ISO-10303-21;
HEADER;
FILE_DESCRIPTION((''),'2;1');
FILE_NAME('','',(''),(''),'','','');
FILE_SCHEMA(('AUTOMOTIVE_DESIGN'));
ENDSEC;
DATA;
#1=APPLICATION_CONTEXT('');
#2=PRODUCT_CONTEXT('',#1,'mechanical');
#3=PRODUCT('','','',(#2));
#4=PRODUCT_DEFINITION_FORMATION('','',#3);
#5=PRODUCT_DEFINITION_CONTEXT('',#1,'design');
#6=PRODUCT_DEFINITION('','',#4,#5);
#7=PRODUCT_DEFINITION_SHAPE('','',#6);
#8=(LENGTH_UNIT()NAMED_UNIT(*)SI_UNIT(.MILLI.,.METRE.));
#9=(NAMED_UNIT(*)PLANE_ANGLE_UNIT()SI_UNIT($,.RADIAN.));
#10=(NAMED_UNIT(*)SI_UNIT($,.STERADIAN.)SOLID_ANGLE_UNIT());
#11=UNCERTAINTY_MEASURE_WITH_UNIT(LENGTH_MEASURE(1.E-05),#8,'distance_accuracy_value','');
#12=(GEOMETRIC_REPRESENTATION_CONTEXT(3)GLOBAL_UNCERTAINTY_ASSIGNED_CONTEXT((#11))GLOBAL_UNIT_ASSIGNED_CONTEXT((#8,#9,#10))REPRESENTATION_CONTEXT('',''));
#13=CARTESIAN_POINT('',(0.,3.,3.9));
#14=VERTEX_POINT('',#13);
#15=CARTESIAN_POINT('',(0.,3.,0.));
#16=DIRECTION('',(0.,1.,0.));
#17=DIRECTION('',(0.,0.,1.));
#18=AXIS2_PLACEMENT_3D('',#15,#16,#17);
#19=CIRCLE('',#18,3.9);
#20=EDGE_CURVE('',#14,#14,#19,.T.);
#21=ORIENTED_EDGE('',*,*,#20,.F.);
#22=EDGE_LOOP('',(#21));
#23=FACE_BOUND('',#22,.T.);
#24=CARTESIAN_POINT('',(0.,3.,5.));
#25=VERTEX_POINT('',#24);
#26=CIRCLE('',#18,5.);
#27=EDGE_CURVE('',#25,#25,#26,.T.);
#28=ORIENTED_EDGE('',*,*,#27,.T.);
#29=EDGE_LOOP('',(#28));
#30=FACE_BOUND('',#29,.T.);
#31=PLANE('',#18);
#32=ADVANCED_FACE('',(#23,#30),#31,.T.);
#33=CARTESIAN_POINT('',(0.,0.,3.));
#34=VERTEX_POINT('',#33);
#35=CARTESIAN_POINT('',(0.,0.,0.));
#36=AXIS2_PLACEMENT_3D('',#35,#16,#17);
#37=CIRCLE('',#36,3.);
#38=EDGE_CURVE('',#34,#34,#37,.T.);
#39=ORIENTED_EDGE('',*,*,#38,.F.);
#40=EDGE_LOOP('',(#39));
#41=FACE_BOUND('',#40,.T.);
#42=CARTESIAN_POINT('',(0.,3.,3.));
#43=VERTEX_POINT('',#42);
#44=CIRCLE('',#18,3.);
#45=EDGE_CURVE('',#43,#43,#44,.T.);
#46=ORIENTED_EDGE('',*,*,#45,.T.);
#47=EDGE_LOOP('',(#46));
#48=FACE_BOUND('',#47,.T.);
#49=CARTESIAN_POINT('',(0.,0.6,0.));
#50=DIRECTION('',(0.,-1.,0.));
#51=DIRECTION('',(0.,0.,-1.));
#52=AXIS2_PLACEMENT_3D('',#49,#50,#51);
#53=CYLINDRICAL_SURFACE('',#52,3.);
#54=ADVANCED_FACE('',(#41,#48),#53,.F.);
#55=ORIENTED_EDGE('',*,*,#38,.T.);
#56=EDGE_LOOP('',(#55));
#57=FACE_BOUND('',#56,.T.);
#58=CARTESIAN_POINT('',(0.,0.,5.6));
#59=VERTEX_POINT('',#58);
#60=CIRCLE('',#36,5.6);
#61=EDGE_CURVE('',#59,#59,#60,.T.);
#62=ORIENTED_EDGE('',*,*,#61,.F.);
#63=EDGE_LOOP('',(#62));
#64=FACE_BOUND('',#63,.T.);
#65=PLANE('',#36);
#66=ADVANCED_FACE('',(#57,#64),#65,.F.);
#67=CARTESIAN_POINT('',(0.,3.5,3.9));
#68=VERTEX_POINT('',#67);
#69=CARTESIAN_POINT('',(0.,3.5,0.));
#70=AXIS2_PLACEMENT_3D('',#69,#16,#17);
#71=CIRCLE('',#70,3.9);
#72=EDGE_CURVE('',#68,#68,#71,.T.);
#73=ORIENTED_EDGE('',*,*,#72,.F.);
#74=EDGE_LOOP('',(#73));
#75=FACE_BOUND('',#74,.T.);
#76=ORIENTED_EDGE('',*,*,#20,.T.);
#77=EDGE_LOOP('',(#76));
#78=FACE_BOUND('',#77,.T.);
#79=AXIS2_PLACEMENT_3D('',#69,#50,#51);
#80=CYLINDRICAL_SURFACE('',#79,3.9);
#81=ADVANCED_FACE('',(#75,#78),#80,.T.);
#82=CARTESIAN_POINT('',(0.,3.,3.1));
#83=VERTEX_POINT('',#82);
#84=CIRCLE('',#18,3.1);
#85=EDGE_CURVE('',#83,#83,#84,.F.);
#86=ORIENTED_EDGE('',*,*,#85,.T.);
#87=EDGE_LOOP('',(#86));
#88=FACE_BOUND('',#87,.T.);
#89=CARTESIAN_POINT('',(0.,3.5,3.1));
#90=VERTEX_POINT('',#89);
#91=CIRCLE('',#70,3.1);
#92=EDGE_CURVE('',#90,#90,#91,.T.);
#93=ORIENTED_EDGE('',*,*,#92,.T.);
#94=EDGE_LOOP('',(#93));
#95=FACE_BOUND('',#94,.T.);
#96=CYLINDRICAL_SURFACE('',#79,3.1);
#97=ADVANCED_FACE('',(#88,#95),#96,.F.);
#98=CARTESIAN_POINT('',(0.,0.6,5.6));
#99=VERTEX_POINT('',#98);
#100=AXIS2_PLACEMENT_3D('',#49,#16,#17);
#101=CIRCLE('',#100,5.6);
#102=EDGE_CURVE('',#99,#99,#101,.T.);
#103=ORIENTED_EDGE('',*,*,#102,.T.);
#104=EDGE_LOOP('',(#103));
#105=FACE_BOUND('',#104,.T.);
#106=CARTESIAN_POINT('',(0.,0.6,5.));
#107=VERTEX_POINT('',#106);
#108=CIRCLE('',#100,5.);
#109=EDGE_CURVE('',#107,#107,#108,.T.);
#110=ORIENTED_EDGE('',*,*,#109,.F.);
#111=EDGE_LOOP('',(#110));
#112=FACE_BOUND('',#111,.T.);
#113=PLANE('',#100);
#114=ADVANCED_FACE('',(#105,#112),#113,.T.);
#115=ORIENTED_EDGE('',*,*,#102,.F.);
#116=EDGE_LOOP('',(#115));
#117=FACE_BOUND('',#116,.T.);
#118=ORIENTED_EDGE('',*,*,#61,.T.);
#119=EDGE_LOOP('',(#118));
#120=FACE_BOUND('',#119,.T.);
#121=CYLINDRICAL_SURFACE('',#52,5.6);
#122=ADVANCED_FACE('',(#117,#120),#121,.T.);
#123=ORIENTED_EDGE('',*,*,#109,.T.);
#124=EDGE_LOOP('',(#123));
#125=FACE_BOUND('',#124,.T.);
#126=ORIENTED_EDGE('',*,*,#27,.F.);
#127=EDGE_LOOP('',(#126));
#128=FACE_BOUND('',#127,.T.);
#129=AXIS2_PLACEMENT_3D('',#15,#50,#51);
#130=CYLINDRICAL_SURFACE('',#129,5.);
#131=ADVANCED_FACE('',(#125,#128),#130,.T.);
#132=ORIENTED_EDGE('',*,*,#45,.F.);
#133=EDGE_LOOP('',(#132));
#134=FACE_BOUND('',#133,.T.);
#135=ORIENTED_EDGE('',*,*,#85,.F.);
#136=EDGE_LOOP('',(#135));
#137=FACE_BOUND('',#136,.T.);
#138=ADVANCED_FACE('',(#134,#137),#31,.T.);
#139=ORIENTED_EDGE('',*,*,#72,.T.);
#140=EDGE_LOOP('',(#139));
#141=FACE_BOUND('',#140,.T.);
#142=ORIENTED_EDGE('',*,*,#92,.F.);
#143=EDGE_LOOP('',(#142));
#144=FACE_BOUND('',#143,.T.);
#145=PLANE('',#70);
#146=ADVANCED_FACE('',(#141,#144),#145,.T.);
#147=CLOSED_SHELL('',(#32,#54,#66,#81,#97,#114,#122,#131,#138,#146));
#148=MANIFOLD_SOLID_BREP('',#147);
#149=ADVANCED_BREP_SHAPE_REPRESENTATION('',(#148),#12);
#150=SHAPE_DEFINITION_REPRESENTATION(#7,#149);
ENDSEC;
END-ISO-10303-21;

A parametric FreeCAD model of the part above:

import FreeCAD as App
import Part
import Sketcher
from FreeCAD import Vector
Q = App.Units.Quantity

doc = App.newDocument("Part")
body = doc.addObject("PartDesign::Body", "Body")

# Sketch on XZ plane
sketch1 = doc.addObject("Sketcher::SketchObject", "Sketch")
body.addObject(sketch1)
sketch1.AttachmentSupport = (doc.XZ_Plane, [""])
sketch1.MapMode = "FlatFace"
sketch1.addGeometry(Part.Circle(Vector(0, 0, 0), Vector(0, 0, 1), 5.6), False)
sketch1.addGeometry(Part.Circle(Vector(0, 0, 0), Vector(0, 0, 1), 3), False)
sketch1.addConstraint(Sketcher.Constraint("Coincident", 0, 3, -1, 1))
sketch1.addConstraint(Sketcher.Constraint("Coincident", 1, 3, -1, 1))
sketch1.addConstraint(Sketcher.Constraint("Diameter", 1, Q("6 mm")))
sketch1.addConstraint(Sketcher.Constraint("Diameter", 0, Q("11.2 mm")))
pad1 = doc.addObject("PartDesign::Pad", "Pad")
body.addObject(pad1)
pad1.Profile = sketch1
pad1.Length = 0.6
pad1.Reversed = True

# Sketch on XZ plane
sketch2 = doc.addObject("Sketcher::SketchObject", "Sketch001")
body.addObject(sketch2)
sketch2.AttachmentSupport = (doc.XZ_Plane, [""])
sketch2.MapMode = "FlatFace"
sketch2.AttachmentOffset = App.Placement(Vector(0, 0, -0.6), App.Rotation())
sketch2.addGeometry(Part.Circle(Vector(0, 0, 0), Vector(0, 0, 1), 5), False)
sketch2.addGeometry(Part.Circle(Vector(0, 0, 0), Vector(0, 0, 1), 3), False)
sketch2.addConstraint(Sketcher.Constraint("Coincident", 0, 3, -1, 1))
sketch2.addConstraint(Sketcher.Constraint("Coincident", 1, 3, -1, 1))
sketch2.addConstraint(Sketcher.Constraint("Diameter", 0, Q("10 mm")))
sketch2.addConstraint(Sketcher.Constraint("Diameter", 1, Q("6 mm")))
pad2 = doc.addObject("PartDesign::Pad", "Pad001")
body.addObject(pad2)
pad2.Profile = sketch2
pad2.Length = 2.4
pad2.Reversed = True

# Sketch on XZ plane
sketch3 = doc.addObject("Sketcher::SketchObject", "Sketch002")
body.addObject(sketch3)
sketch3.AttachmentSupport = (doc.XZ_Plane, [""])
sketch3.MapMode = "FlatFace"
sketch3.AttachmentOffset = App.Placement(Vector(0, 0, -3), App.Rotation())
sketch3.addGeometry(Part.Circle(Vector(0, 0, 0), Vector(0, 0, 1), 3.9), False)
sketch3.addGeometry(Part.Circle(Vector(0, 0, 0), Vector(0, 0, 1), 3.1), False)
sketch3.addConstraint(Sketcher.Constraint("Coincident", 0, 3, -1, 1))
sketch3.addConstraint(Sketcher.Constraint("Coincident", 1, 3, -1, 1))
sketch3.addConstraint(Sketcher.Constraint("Diameter", 0, Q("7.8 mm")))
sketch3.addConstraint(Sketcher.Constraint("Diameter", 1, Q("6.2 mm")))
pad3 = doc.addObject("PartDesign::Pad", "Pad002")
body.addObject(pad3)
pad3.Profile = sketch3
pad3.Length = 0.5
pad3.Reversed = True

doc.recompute()
